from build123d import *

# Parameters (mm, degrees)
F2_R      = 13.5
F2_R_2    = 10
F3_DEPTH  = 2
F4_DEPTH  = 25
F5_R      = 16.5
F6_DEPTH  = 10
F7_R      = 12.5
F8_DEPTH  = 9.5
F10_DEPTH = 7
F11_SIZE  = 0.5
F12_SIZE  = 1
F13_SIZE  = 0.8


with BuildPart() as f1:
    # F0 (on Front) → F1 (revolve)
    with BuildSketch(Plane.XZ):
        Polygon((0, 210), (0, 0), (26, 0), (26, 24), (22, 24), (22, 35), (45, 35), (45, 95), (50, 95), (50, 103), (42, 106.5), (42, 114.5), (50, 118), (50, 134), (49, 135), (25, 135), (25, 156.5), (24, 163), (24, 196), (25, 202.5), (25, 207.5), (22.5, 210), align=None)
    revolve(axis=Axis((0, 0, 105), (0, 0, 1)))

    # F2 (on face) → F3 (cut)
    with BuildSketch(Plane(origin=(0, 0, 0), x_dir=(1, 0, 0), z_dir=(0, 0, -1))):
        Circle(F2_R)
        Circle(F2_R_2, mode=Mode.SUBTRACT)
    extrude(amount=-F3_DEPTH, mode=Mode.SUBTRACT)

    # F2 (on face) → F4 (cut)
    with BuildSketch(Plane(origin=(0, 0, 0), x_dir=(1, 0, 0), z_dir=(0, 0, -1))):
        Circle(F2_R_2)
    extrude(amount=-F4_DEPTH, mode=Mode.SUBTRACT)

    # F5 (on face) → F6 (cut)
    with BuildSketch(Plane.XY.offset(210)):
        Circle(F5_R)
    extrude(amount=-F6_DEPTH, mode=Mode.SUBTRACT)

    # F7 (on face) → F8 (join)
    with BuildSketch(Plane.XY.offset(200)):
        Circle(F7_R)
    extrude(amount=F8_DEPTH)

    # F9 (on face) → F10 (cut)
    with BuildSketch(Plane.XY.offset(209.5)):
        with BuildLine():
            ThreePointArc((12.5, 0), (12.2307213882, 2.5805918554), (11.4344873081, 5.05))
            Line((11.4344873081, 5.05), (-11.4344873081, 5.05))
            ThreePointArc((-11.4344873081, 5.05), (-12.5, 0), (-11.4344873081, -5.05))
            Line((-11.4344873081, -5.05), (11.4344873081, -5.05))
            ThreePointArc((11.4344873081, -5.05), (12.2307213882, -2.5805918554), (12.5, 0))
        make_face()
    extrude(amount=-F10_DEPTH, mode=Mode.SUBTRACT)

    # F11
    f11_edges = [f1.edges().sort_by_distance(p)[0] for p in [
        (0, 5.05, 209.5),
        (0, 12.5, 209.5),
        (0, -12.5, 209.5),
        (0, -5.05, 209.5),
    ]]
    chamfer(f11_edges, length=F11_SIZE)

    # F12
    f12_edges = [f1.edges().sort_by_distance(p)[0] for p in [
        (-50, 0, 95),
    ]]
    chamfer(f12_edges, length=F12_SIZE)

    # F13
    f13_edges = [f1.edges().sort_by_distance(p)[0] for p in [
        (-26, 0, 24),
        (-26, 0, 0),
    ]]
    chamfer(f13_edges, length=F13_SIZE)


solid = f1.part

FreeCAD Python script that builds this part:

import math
import FreeCAD as App
import Part
import Sketcher

V = App.Vector
Q = App.Units.Quantity


def edges_at(feature, points):
    """Names of the edges that pass closest to the given points."""
    edges = feature.Shape.Edges
    near = lambda p: min(range(len(edges)), key=lambda i: edges[i].distToShape(Part.Vertex(*p))[0])
    return sorted({f"Edge{near(p) + 1}" for p in points})

doc = App.newDocument("Part")
params = doc.addObject("Spreadsheet::Sheet", "Params")
for row, (alias, value) in enumerate([
    ("sketch1_width", "26 mm"),
    ("sketch1_width2", "4 mm"),
    ("sketch1_width3", "23 mm"),
    ("sketch1_width4", "5 mm"),
    ("sketch1_width5", "24 mm"),
    ("revolution_angle", "360 deg"),
    ("sketch2_diameter", "27 mm"),
    ("sketch2_diameter2", "20 mm"),
    ("pocket1_length", "2 mm"),
    ("sketch3_diameter", "20 mm"),
    ("pocket2_length", "25 mm"),
    ("sketch4_diameter", "33 mm"),
    ("pocket3_length", "10 mm"),
    ("sketch5_diameter", "25 mm"),
    ("pad1_length", "9.5 mm"),
    ("sketch6_radius", "12.5 mm"),
    ("pocket4_length", "7 mm"),
    ("chamfer_size", "0.5 mm"),
    ("chamfer2_size", "1 mm"),
    ("chamfer3_size", "0.8 mm"),
], start=1):
    params.set(f"A{row}", alias)
    params.set(f"B{row}", "=" + value)
    params.setAlias(f"B{row}", alias)

body = doc.addObject("PartDesign::Body", "Body")

sketch1 = body.newObject("Sketcher::SketchObject", "Sketch")
sketch1.AttachmentSupport = (doc.getObject("XZ_Plane"), [""])
sketch1.MapMode = "FlatFace"
sketch1.addGeometry(Part.LineSegment(V(0, 210, 0), V(0, 0, 0)), False)
sketch1.addGeometry(Part.LineSegment(V(0, 0, 0), V(26, 0, 0)), False)
sketch1.addGeometry(Part.LineSegment(V(26, 0, 0), V(26, 24, 0)), False)
sketch1.addGeometry(Part.LineSegment(V(26, 24, 0), V(22, 24, 0)), False)
sketch1.addGeometry(Part.LineSegment(V(22, 24, 0), V(22, 35, 0)), False)
sketch1.addGeometry(Part.LineSegment(V(22, 35, 0), V(45, 35, 0)), False)
sketch1.addGeometry(Part.LineSegment(V(45, 35, 0), V(45, 95, 0)), False)
sketch1.addGeometry(Part.LineSegment(V(45, 95, 0), V(50, 95, 0)), False)
sketch1.addGeometry(Part.LineSegment(V(50, 95, 0), V(50, 103, 0)), False)
sketch1.addGeometry(Part.LineSegment(V(50, 103, 0), V(42, 106.5, 0)), False)
sketch1.addGeometry(Part.LineSegment(V(42, 106.5, 0), V(42, 114.5, 0)), False)
sketch1.addGeometry(Part.LineSegment(V(42, 114.5, 0), V(50, 118, 0)), False)
sketch1.addGeometry(Part.LineSegment(V(50, 118, 0), V(50, 134, 0)), False)
sketch1.addGeometry(Part.LineSegment(V(50, 134, 0), V(49, 135, 0)), False)
sketch1.addGeometry(Part.LineSegment(V(49, 135, 0), V(25, 135, 0)), False)
sketch1.addGeometry(Part.LineSegment(V(25, 135, 0), V(25, 156.5, 0)), False)
sketch1.addGeometry(Part.LineSegment(V(25, 156.5, 0), V(24, 163, 0)), False)
sketch1.addGeometry(Part.LineSegment(V(24, 163, 0), V(24, 196, 0)), False)
sketch1.addGeometry(Part.LineSegment(V(24, 196, 0), V(25, 202.5, 0)), False)
sketch1.addGeometry(Part.LineSegment(V(25, 202.5, 0), V(25, 207.5, 0)), False)
sketch1.addGeometry(Part.LineSegment(V(25, 207.5, 0), V(22.5, 210, 0)), False)
sketch1.addGeometry(Part.LineSegment(V(22.5, 210, 0), V(0, 210, 0)), False)
sketch1.addConstraint(Sketcher.Constraint("Coincident", 0, 2, 1, 1))
sketch1.addConstraint(Sketcher.Constraint("Coincident", 1, 2, 2, 1))
sketch1.addConstraint(Sketcher.Constraint("Coincident", 2, 2, 3, 1))
sketch1.addConstraint(Sketcher.Constraint("Coincident", 3, 2, 4, 1))
sketch1.addConstraint(Sketcher.Constraint("Coincident", 4, 2, 5, 1))
sketch1.addConstraint(Sketcher.Constraint("Coincident", 5, 2, 6, 1))
sketch1.addConstraint(Sketcher.Constraint("Coincident", 6, 2, 7, 1))
sketch1.addConstraint(Sketcher.Constraint("Coincident", 7, 2, 8, 1))
sketch1.addConstraint(Sketcher.Constraint("Coincident", 8, 2, 9, 1))
sketch1.addConstraint(Sketcher.Constraint("Coincident", 9, 2, 10, 1))
sketch1.addConstraint(Sketcher.Constraint("Coincident", 10, 2, 11, 1))
sketch1.addConstraint(Sketcher.Constraint("Coincident", 11, 2, 12, 1))
sketch1.addConstraint(Sketcher.Constraint("Coincident", 12, 2, 13, 1))
sketch1.addConstraint(Sketcher.Constraint("Coincident", 13, 2, 14, 1))
sketch1.addConstraint(Sketcher.Constraint("Coincident", 14, 2, 15, 1))
sketch1.addConstraint(Sketcher.Constraint("Coincident", 15, 2, 16, 1))
sketch1.addConstraint(Sketcher.Constraint("Coincident", 16, 2, 17, 1))
sketch1.addConstraint(Sketcher.Constraint("Coincident", 17, 2, 18, 1))
sketch1.addConstraint(Sketcher.Constraint("Coincident", 18, 2, 19, 1))
sketch1.addConstraint(Sketcher.Constraint("Coincident", 19, 2, 20, 1))
sketch1.addConstraint(Sketcher.Constraint("Coincident", 20, 2, 21, 1))
sketch1.addConstraint(Sketcher.Constraint("Coincident", 21, 2, 0, 1))
sketch1.addConstraint(Sketcher.Constraint("Vertical", 0))
sketch1.addConstraint(Sketcher.Constraint("Horizontal", 1))
sketch1.addConstraint(Sketcher.Constraint("Vertical", 2))
sketch1.addConstraint(Sketcher.Constraint("Horizontal", 3))
sketch1.addConstraint(Sketcher.Constraint("Vertical", 4))
sketch1.addConstraint(Sketcher.Constraint("Horizontal", 5))
sketch1.addConstraint(Sketcher.Constraint("Vertical", 6))
sketch1.addConstraint(Sketcher.Constraint("Horizontal", 7))
sketch1.addConstraint(Sketcher.Constraint("Vertical", 8))
sketch1.addConstraint(Sketcher.Constraint("Vertical", 10))
sketch1.addConstraint(Sketcher.Constraint("Vertical", 12))
sketch1.addConstraint(Sketcher.Constraint("Horizontal", 14))
sketch1.addConstraint(Sketcher.Constraint("Vertical", 15))
sketch1.addConstraint(Sketcher.Constraint("Vertical", 17))
sketch1.addConstraint(Sketcher.Constraint("Vertical", 19))
sketch1.addConstraint(Sketcher.Constraint("Horizontal", 21))
sketch1.addConstraint(Sketcher.Constraint("Coincident", 0, 2, -1, 1))
sketch1.addConstraint(Sketcher.Constraint("Parallel", 13, 20))
sketch1.addConstraint(Sketcher.Constraint("Vertical", 8, 2, 11, 2))
sketch1.addConstraint(Sketcher.Constraint("Vertical", 15, 2, 18, 2))
sketch1.addConstraint(Sketcher.Constraint("Equal", 14, 2))
sketch1.addConstraint(Sketcher.Constraint("Equal", 8, 10))
sketch1.addConstraint(Sketcher.Constraint("Equal", 7, 19))
sketch1.addConstraint(Sketcher.Constraint("Equal", 9, 11))
sketch1.addConstraint(Sketcher.Constraint("Equal", 16, 18))
sketch1.addConstraint(Sketcher.Constraint("DistanceX", 1, 1, 1, 2, 26.0))
sketch1.addConstraint(Sketcher.Constraint("DistanceX", 3, 2, 3, 1, 4.0))
sketch1.addConstraint(Sketcher.Constraint("DistanceX", 5, 1, 5, 2, 23.0))
sketch1.addConstraint(Sketcher.Constraint("DistanceX", 7, 1, 7, 2, 5.0))
sketch1.addConstraint(Sketcher.Constraint("DistanceX", 14, 2, 14, 1, 24.0))
sketch1.addConstraint(Sketcher.Constraint("DistanceY", 0, 2, 0, 1, 210.0))
sketch1.addConstraint(Sketcher.Constraint("DistanceY", 4, 1, 4, 2, 11.0))
sketch1.addConstraint(Sketcher.Constraint("DistanceY", 6, 1, 6, 2, 60.0))
sketch1.addConstraint(Sketcher.Constraint("DistanceY", 8, 1, 8, 2, 8.0))
sketch1.addConstraint(Sketcher.Constraint("DistanceY", 12, 1, 12, 2, 16.0))
sketch1.addConstraint(Sketcher.Constraint("DistanceY", 17, 1, 17, 2, 33.0))
sketch1.addConstraint(Sketcher.Constraint("Angle", 13, Q("135 deg")))
sketch1.addConstraint(Sketcher.Constraint("DistanceX", 21, 2, 21, 1, 22.5))
sketch1.addConstraint(Sketcher.Constraint("DistanceY", 15, 1, 15, 2, 21.5))
sketch1.addConstraint(Sketcher.Constraint("DistanceX", -1, 1, 9, 2, 42.0))
sketch1.addConstraint(Sketcher.Constraint("DistanceY", -1, 1, 11, 2, 118.0))
sketch1.addConstraint(Sketcher.Constraint("DistanceX", -1, 1, 13, 2, 49.0))
sketch1.addConstraint(Sketcher.Constraint("DistanceX", -1, 1, 16, 2, 24.0))
sketch1.setExpression("Constraints[47]", "Params.sketch1_width")
sketch1.setExpression("Constraints[48]", "Params.sketch1_width2")
sketch1.setExpression("Constraints[49]", "Params.sketch1_width3")
sketch1.setExpression("Constraints[50]", "Params.sketch1_width4")
sketch1.setExpression("Constraints[51]", "Params.sketch1_width5")
revolution = body.newObject("PartDesign::Revolution", "Revolution")
revolution.Profile = sketch1
revolution.ReferenceAxis = (sketch1, ["V_Axis"])
revolution.setExpression("Angle", "Params.revolution_angle")

sketch2 = body.newObject("Sketcher::SketchObject", "Sketch001")
sketch2.AttachmentSupport = (doc.getObject("XY_Plane"), [""])
sketch2.MapMode = "FlatFace"
sketch2.addGeometry(Part.Circle(V(0, 0, 0), V(0, 0, 1), 13.5), False)
sketch2.addGeometry(Part.Circle(V(0, 0, 0), V(0, 0, 1), 10), False)
sketch2.addConstraint(Sketcher.Constraint("Coincident", 0, 3, -1, 1))
sketch2.addConstraint(Sketcher.Constraint("Coincident", 1, 3, -1, 1))
sketch2.addConstraint(Sketcher.Constraint("Diameter", 0, 27.0))
sketch2.addConstraint(Sketcher.Constraint("Diameter", 1, 20.0))
sketch2.setExpression("Constraints[2]", "Params.sketch2_diameter")
sketch2.setExpression("Constraints[3]", "Params.sketch2_diameter2")
pocket1 = body.newObject("PartDesign::Pocket", "Pocket")
pocket1.Profile = sketch2
pocket1.setExpression("Length", "Params.pocket1_length")
pocket1.Reversed = True

sketch3 = body.newObject("Sketcher::SketchObject", "Sketch002")
sketch3.AttachmentSupport = (doc.getObject("XY_Plane"), [""])
sketch3.MapMode = "FlatFace"
sketch3.addGeometry(Part.Circle(V(0, 0, 0), V(0, 0, 1), 10), False)
sketch3.addConstraint(Sketcher.Constraint("Coincident", 0, 3, -1, 1))
sketch3.addConstraint(Sketcher.Constraint("Diameter", 0, 20.0))
sketch3.setExpression("Constraints[1]", "Params.sketch3_diameter")
pocket2 = body.newObject("PartDesign::Pocket", "Pocket001")
pocket2.Profile = sketch3
pocket2.setExpression("Length", "Params.pocket2_length")
pocket2.Reversed = True

sketch4 = body.newObject("Sketcher::SketchObject", "Sketch003")
sketch4.AttachmentSupport = (doc.getObject("XY_Plane"), [""])
sketch4.MapMode = "FlatFace"
sketch4.AttachmentOffset = App.Placement(V(0, 0, 210), App.Rotation())
sketch4.addGeometry(Part.Circle(V(0, 0, 0), V(0, 0, 1), 16.5), False)
sketch4.addConstraint(Sketcher.Constraint("Coincident", 0, 3, -1, 1))
sketch4.addConstraint(Sketcher.Constraint("Diameter", 0, 33.0))
sketch4.setExpression("Constraints[1]", "Params.sketch4_diameter")
pocket3 = body.newObject("PartDesign::Pocket", "Pocket002")
pocket3.Profile = sketch4
pocket3.setExpression("Length", "Params.pocket3_length")

sketch5 = body.newObject("Sketcher::SketchObject", "Sketch004")
sketch5.AttachmentSupport = (doc.getObject("XY_Plane"), [""])
sketch5.MapMode = "FlatFace"
sketch5.AttachmentOffset = App.Placement(V(0, 0, 200), App.Rotation())
sketch5.addGeometry(Part.Circle(V(0, 0, 0), V(0, 0, 1), 12.5), False)
sketch5.addConstraint(Sketcher.Constraint("Coincident", 0, 3, -1, 1))
sketch5.addConstraint(Sketcher.Constraint("Diameter", 0, 25.0))
sketch5.setExpression("Constraints[1]", "Params.sketch5_diameter")
pad1 = body.newObject("PartDesign::Pad", "Pad")
pad1.Profile = sketch5
pad1.setExpression("Length", "Params.pad1_length")

sketch6 = body.newObject("Sketcher::SketchObject", "Sketch005")
sketch6.AttachmentSupport = (doc.getObject("XY_Plane"), [""])
sketch6.MapMode = "FlatFace"
sketch6.AttachmentOffset = App.Placement(V(0, 0, 209.5), App.Rotation())
sketch6.addGeometry(Part.ArcOfCircle(Part.Circle(V(0, 0, 0), V(0, 0, 1), 12.5), math.radians(0), math.radians(23.828477)), False)
sketch6.addGeometry(Part.LineSegment(V(11.434487, 5.05, 0), V(-11.434487, 5.05, 0)), False)
sketch6.addGeometry(Part.ArcOfCircle(Part.Circle(V(0, 0, 0), V(0, 0, 1), 12.5), math.radians(156.171523), math.radians(203.828477)), False)
sketch6.addGeometry(Part.LineSegment(V(-11.434487, -5.05, 0), V(11.434487, -5.05, 0)), False)
sketch6.addGeometry(Part.ArcOfCircle(Part.Circle(V(0, 0, 0), V(0, 0, 1), 12.5), math.radians(-23.828477), math.radians(0)), False)
sketch6.addConstraint(Sketcher.Constraint("Coincident", 0, 2, 1, 1))
sketch6.addConstraint(Sketcher.Constraint("Coincident", 1, 2, 2, 1))
sketch6.addConstraint(Sketcher.Constraint("Coincident", 2, 2, 3, 1))
sketch6.addConstraint(Sketcher.Constraint("Coincident", 3, 2, 4, 1))
sketch6.addConstraint(Sketcher.Constraint("Tangent", 4, 2, 0, 1))
sketch6.addConstraint(Sketcher.Constraint("Horizontal", 1))
sketch6.addConstraint(Sketcher.Constraint("Horizontal", 3))
sketch6.addConstraint(Sketcher.Constraint("Coincident", 0, 3, -1, 1))
sketch6.addConstraint(Sketcher.Constraint("Coincident", 2, 3, -1, 1))
sketch6.addConstraint(Sketcher.Constraint("Equal", 0, 2))
sketch6.addConstraint(Sketcher.Constraint("Equal", 2, 4))
sketch6.addConstraint(Sketcher.Constraint("PointOnObject", 4, 2, -1))
sketch6.addConstraint(Sketcher.Constraint("Vertical", 1, 2, 2, 2))
sketch6.addConstraint(Sketcher.Constraint("Radius", 0, 12.5))
sketch6.addConstraint(Sketcher.Constraint("DistanceY", 2, 2, 1, 2, 10.1))
sketch6.setExpression("Constraints[13]", "Params.sketch6_radius")
pocket4 = body.newObject("PartDesign::Pocket", "Pocket003")
pocket4.Profile = sketch6
pocket4.setExpression("Length", "Params.pocket4_length")
doc.recompute()

chamfer = body.newObject("PartDesign::Chamfer", "Chamfer")
chamfer.Base = (pocket4, edges_at(pocket4, [
    (0, 5.05, 209.5),
    (0, 12.5, 209.5),
    (0, -12.5, 209.5),
    (0, -5.05, 209.5),
]))
chamfer.setExpression("Size", "Params.chamfer_size")
doc.recompute()

chamfer2 = body.newObject("PartDesign::Chamfer", "Chamfer001")
chamfer2.Base = (chamfer, edges_at(chamfer, [(-50, 0, 95)]))
chamfer2.setExpression("Size", "Params.chamfer2_size")
doc.recompute()

chamfer3 = body.newObject("PartDesign::Chamfer", "Chamfer002")
chamfer3.Base = (chamfer2, edges_at(chamfer2, [(-26, 0, 24), (-26, 0, 0)]))
chamfer3.setExpression("Size", "Params.chamfer3_size")

doc.recompute()
